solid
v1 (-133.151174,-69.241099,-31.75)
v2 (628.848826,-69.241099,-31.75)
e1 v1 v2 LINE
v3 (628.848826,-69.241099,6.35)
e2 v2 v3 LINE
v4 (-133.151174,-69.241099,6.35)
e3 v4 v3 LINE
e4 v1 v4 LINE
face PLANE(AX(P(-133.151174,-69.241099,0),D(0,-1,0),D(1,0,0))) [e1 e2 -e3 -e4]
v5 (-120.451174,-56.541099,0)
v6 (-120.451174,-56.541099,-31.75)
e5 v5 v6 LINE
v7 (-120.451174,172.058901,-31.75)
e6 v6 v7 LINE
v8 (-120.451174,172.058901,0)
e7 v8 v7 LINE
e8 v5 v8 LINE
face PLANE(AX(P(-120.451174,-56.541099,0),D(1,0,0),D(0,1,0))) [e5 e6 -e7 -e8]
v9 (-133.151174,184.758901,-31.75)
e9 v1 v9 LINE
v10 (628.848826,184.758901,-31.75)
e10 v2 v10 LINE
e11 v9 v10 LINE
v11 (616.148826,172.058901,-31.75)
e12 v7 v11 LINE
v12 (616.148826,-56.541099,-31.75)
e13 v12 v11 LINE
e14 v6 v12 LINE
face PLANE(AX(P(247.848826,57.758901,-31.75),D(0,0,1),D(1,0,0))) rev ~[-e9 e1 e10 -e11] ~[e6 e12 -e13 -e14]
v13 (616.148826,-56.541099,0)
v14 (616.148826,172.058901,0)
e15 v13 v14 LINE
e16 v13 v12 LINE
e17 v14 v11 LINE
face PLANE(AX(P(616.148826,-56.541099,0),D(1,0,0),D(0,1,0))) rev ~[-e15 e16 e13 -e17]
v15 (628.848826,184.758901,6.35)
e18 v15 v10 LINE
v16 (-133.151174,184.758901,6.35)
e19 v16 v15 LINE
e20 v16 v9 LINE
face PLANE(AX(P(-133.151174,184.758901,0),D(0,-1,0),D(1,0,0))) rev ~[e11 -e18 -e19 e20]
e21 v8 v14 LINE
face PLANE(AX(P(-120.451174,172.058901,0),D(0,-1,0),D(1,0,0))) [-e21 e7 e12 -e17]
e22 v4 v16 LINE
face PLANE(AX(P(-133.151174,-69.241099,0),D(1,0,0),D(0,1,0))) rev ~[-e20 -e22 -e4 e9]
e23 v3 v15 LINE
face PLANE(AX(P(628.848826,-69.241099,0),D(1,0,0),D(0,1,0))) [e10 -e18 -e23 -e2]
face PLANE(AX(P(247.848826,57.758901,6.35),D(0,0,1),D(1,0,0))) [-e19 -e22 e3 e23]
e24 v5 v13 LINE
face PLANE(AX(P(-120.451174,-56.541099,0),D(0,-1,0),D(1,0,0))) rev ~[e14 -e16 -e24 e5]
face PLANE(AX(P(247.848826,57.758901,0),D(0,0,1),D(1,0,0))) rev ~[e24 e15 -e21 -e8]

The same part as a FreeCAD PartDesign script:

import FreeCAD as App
import Part
import Sketcher
from FreeCAD import Vector
Q = App.Units.Quantity

doc = App.newDocument("Part")
params = doc.addObject("Spreadsheet::Sheet", "Params")
for row, (alias, value) in enumerate([
    ("sketch1_width", "30 in"),
    ("sketch1_height", "10 in"),
    ("pad1_length", "0.25 in"),
    ("sketch2_width", "30 in"),
    ("sketch2_width2", "29 in"),
    ("sketch2_height", "10 in"),
    ("sketch2_height2", "9 in"),
    ("pad2_length", "1.25 in"),
], start=1):
    params.set(f"A{row}", alias)
    params.set(f"B{row}", "=" + value)
    params.setAlias(f"B{row}", alias)

body = doc.addObject("PartDesign::Body", "Body")

# Sketch on XY plane
sketch1 = body.newObject("Sketcher::SketchObject", "Sketch")
sketch1.AttachmentSupport = (doc.getObject("XY_Plane"), [""])
sketch1.MapMode = "FlatFace"
sketch1.addGeometry(Part.LineSegment(Vector(-133, 185, 0), Vector(-133, -69, 0)), False)
sketch1.addGeometry(Part.LineSegment(Vector(-133, -69, 0), Vector(629, -69, 0)), False)
sketch1.addGeometry(Part.LineSegment(Vector(629, -69, 0), Vector(629, 185, 0)), False)
sketch1.addGeometry(Part.LineSegment(Vector(629, 185, 0), Vector(-133, 185, 0)), False)
sketch1.addConstraint(Sketcher.Constraint("Coincident", 0, 2, 1, 1))
sketch1.addConstraint(Sketcher.Constraint("Coincident", 1, 2, 2, 1))
sketch1.addConstraint(Sketcher.Constraint("Coincident", 2, 2, 3, 1))
sketch1.addConstraint(Sketcher.Constraint("Coincident", 3, 2, 0, 1))
sketch1.addConstraint(Sketcher.Constraint("Vertical", 0))
sketch1.addConstraint(Sketcher.Constraint("Horizontal", 1))
sketch1.addConstraint(Sketcher.Constraint("Vertical", 2))
sketch1.addConstraint(Sketcher.Constraint("Horizontal", 3))
sketch1.addConstraint(Sketcher.Constraint("DistanceX", 1, 1, 1, 2, Q("30 in")))
sketch1.addConstraint(Sketcher.Constraint("DistanceY", 0, 2, 0, 1, Q("10 in")))
sketch1.addConstraint(Sketcher.Constraint("DistanceY", 0, 2, -1, 1, Q("69.241099 mm")))
sketch1.addConstraint(Sketcher.Constraint("DistanceX", 0, 2, -1, 1, Q("133.151174 mm")))
sketch1.setExpression("Constraints[8]", "Params.sketch1_width")
sketch1.setExpression("Constraints[9]", "Params.sketch1_height")
pad1 = body.newObject("PartDesign::Pad", "Pad")
pad1.Profile = sketch1
pad1.setExpression("Length", "Params.pad1_length")

# Sketch on XY plane
sketch2 = body.newObject("Sketcher::SketchObject", "Sketch001")
sketch2.AttachmentSupport = (doc.getObject("XY_Plane"), [""])
sketch2.MapMode = "FlatFace"
sketch2.addGeometry(Part.LineSegment(Vector(-133, 185, 0), Vector(-133, -69, 0)), False)
sketch2.addGeometry(Part.LineSegment(Vector(-133, -69, 0), Vector(629, -69, 0)), False)
sketch2.addGeometry(Part.LineSegment(Vector(629, -69, 0), Vector(629, 185, 0)), False)
sketch2.addGeometry(Part.LineSegment(Vector(629, 185, 0), Vector(-133, 185, 0)), False)
sketch2.addGeometry(Part.LineSegment(Vector(616, -57, 0), Vector(-120, -57, 0)), False)
sketch2.addGeometry(Part.LineSegment(Vector(-120, -57, 0), Vector(-120, 172, 0)), False)
sketch2.addGeometry(Part.LineSegment(Vector(-120, 172, 0), Vector(616, 172, 0)), False)
sketch2.addGeometry(Part.LineSegment(Vector(616, 172, 0), Vector(616, -57, 0)), False)
sketch2.addConstraint(Sketcher.Constraint("Coincident", 0, 2, 1, 1))
sketch2.addConstraint(Sketcher.Constraint("Coincident", 1, 2, 2, 1))
sketch2.addConstraint(Sketcher.Constraint("Coincident", 2, 2, 3, 1))
sketch2.addConstraint(Sketcher.Constraint("Coincident", 3, 2, 0, 1))
sketch2.addConstraint(Sketcher.Constraint("Coincident", 4, 2, 5, 1))
sketch2.addConstraint(Sketcher.Constraint("Coincident", 5, 2, 6, 1))
sketch2.addConstraint(Sketcher.Constraint("Coincident", 6, 2, 7, 1))
sketch2.addConstraint(Sketcher.Constraint("Coincident", 7, 2, 4, 1))
sketch2.addConstraint(Sketcher.Constraint("Vertical", 0))
sketch2.addConstraint(Sketcher.Constraint("Horizontal", 1))
sketch2.addConstraint(Sketcher.Constraint("Vertical", 2))
sketch2.addConstraint(Sketcher.Constraint("Horizontal", 3))
sketch2.addConstraint(Sketcher.Constraint("Horizontal", 4))
sketch2.addConstraint(Sketcher.Constraint("Vertical", 5))
sketch2.addConstraint(Sketcher.Constraint("Horizontal", 6))
sketch2.addConstraint(Sketcher.Constraint("Vertical", 7))
sketch2.addConstraint(Sketcher.Constraint("DistanceX", 1, 1, 1, 2, Q("30 in")))
sketch2.addConstraint(Sketcher.Constraint("DistanceX", 4, 2, 4, 1, Q("29 in")))
sketch2.addConstraint(Sketcher.Constraint("DistanceY", 0, 2, 0, 1, Q("10 in")))
sketch2.addConstraint(Sketcher.Constraint("DistanceY", 5, 1, 5, 2, Q("9 in")))
sketch2.addConstraint(Sketcher.Constraint("DistanceX", 0, 2, 4, 2, Q("0.5 in")))
sketch2.addConstraint(Sketcher.Constraint("DistanceY", 0, 2, 4, 2, Q("0.5 in")))
sketch2.addConstraint(Sketcher.Constraint("DistanceY", 0, 2, -1, 1, Q("69.241099 mm")))
sketch2.addConstraint(Sketcher.Constraint("DistanceX", 0, 2, -1, 1, Q("133.151174 mm")))
sketch2.setExpression("Constraints[16]", "Params.sketch2_width")
sketch2.setExpression("Constraints[17]", "Params.sketch2_width2")
sketch2.setExpression("Constraints[18]", "Params.sketch2_height")
sketch2.setExpression("Constraints[19]", "Params.sketch2_height2")
pad2 = body.newObject("PartDesign::Pad", "Pad001")
pad2.Profile = sketch2
pad2.setExpression("Length", "Params.pad2_length")
pad2.Reversed = True

doc.recompute()
